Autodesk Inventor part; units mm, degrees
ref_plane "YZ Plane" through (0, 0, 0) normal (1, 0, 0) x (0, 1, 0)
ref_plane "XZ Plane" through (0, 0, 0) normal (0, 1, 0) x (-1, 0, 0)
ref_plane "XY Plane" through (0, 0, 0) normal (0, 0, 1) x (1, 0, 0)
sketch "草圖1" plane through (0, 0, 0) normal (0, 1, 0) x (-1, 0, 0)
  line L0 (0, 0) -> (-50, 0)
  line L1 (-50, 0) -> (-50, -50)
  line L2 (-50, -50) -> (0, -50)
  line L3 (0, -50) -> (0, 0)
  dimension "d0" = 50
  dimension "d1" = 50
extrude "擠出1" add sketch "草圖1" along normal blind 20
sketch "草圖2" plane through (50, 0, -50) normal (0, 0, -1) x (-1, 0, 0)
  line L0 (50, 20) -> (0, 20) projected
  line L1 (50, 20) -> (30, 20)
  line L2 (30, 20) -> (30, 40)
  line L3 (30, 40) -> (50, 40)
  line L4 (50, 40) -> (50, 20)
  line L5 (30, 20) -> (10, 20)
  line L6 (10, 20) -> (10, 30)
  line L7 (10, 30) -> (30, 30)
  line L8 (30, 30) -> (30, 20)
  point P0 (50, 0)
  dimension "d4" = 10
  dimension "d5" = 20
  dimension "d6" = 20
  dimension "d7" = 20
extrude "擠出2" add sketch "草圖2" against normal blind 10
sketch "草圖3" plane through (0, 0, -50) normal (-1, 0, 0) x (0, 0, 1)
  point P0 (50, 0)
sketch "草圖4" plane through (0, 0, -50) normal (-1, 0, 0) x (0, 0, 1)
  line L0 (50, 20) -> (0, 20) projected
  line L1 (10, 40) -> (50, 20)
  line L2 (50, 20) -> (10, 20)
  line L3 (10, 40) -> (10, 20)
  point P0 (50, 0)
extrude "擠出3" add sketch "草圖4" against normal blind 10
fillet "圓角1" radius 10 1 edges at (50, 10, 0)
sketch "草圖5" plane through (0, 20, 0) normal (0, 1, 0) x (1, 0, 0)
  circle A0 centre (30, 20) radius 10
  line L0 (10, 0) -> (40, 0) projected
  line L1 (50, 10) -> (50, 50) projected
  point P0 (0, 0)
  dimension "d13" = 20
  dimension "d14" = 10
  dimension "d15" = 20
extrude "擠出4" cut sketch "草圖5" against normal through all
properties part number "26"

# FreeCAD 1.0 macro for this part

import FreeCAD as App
import Part
import Sketcher
from FreeCAD import Vector
Q = App.Units.Quantity


def edges_at(feature, points):
    """Names of the edges that pass closest to the given points."""
    edges = feature.Shape.Edges
    near = lambda p: min(range(len(edges)), key=lambda i: edges[i].distToShape(Part.Vertex(*p))[0])
    return sorted({f"Edge{near(p) + 1}" for p in points})


def add_polygon(sketch, points):
    """Adds a closed chain of lines whose ends are joined by coincident constraints."""
    first, n = sketch.GeometryCount, len(points)
    for a, b in zip(points, points[1:] + points[:1]):
        sketch.addGeometry(Part.LineSegment(App.Vector(*a, 0), App.Vector(*b, 0)), False)
    for i in range(n):
        sketch.addConstraint(Sketcher.Constraint("Coincident", first + i, 2, first + (i + 1) % n, 1))

doc = App.newDocument("Part")
body = doc.addObject("PartDesign::Body", "Body")

sketch1 = body.newObject("Sketcher::SketchObject", "Sketch")
sketch1.AttachmentSupport = (doc.getObject("XZ_Plane"), [""])
sketch1.MapMode = "FlatFace"
add_polygon(sketch1, [(0, -50), (0, 0), (50, 0), (50, -50)])
sketch1.addConstraint(Sketcher.Constraint("Vertical", 0))
sketch1.addConstraint(Sketcher.Constraint("Horizontal", 1))
sketch1.addConstraint(Sketcher.Constraint("Vertical", 2))
sketch1.addConstraint(Sketcher.Constraint("Horizontal", 3))
sketch1.addConstraint(Sketcher.Constraint("Coincident", 0, 2, -1, 1))
sketch1.addConstraint(Sketcher.Constraint("Equal", 3, 0))
sketch1.addConstraint(Sketcher.Constraint("DistanceX", 1, 1, 1, 2, Q("50 mm")))
pad1 = body.newObject("PartDesign::Pad", "Pad")
pad1.Profile = sketch1
pad1.Length = 20
pad1.Reversed = True

sketch2 = body.newObject("Sketcher::SketchObject", "Sketch001")
sketch2.AttachmentSupport = (doc.getObject("XY_Plane"), [""])
sketch2.MapMode = "FlatFace"
sketch2.AttachmentOffset = App.Placement(Vector(0, 0, -50), App.Rotation())
add_polygon(sketch2, [(0, 20), (0, 40), (20, 40), (20, 30), (40, 30), (40, 20)])
sketch2.addConstraint(Sketcher.Constraint("Vertical", 0))
sketch2.addConstraint(Sketcher.Constraint("Horizontal", 1))
sketch2.addConstraint(Sketcher.Constraint("Vertical", 2))
sketch2.addConstraint(Sketcher.Constraint("Horizontal", 3))
sketch2.addConstraint(Sketcher.Constraint("Vertical", 4))
sketch2.addConstraint(Sketcher.Constraint("Horizontal", 5))
sketch2.addConstraint(Sketcher.Constraint("PointOnObject", 0, 2, -2))
sketch2.addConstraint(Sketcher.Constraint("Equal", 1, 3))
sketch2.addConstraint(Sketcher.Constraint("Equal", 3, 0))
sketch2.addConstraint(Sketcher.Constraint("Equal", 2, 4))
sketch2.addConstraint(Sketcher.Constraint("DistanceX", 1, 1, 1, 2, Q("20 mm")))
sketch2.addConstraint(Sketcher.Constraint("DistanceY", -1, 1, 4, 2, Q("20 mm")))
pad2 = body.newObject("PartDesign::Pad", "Pad001")
pad2.Profile = sketch2
pad2.Length = 10

sketch3 = body.newObject("Sketcher::SketchObject", "Sketch002")
sketch3.AttachmentSupport = (doc.getObject("YZ_Plane"), [""])
sketch3.MapMode = "FlatFace"
add_polygon(sketch3, [(20, -40), (20, 0), (40, -40)])
sketch3.addConstraint(Sketcher.Constraint("Vertical", 0))
sketch3.addConstraint(Sketcher.Constraint("Horizontal", 2))
sketch3.addConstraint(Sketcher.Constraint("PointOnObject", 0, 2, -1))
sketch3.addConstraint(Sketcher.Constraint("DistanceX", 2, 2, 2, 1, Q("20 mm")))
sketch3.addConstraint(Sketcher.Constraint("DistanceY", 0, 1, 0, 2, Q("40 mm")))
sketch3.addConstraint(Sketcher.Constraint("DistanceX", -1, 1, 0, 2, Q("20 mm")))
pad3 = body.newObject("PartDesign::Pad", "Pad002")
pad3.Profile = sketch3
pad3.Length = 10
doc.recompute()

fillet = body.newObject("PartDesign::Fillet", "Fillet")
fillet.Base = (pad3, edges_at(pad3, [(50, 10, 0)]))
fillet.Radius = 10

sketch4 = body.newObject("Sketcher::SketchObject", "Sketch003")
sketch4.AttachmentSupport = (doc.getObject("XZ_Plane"), [""])
sketch4.MapMode = "FlatFace"
sketch4.AttachmentOffset = App.Placement(Vector(0, 0, -20), App.Rotation())
sketch4.addGeometry(Part.Circle(Vector(30, -20, 0), Vector(0, 0, 1), 10), False)
sketch4.addConstraint(Sketcher.Constraint("Diameter", 0, Q("20 mm")))
sketch4.addConstraint(Sketcher.Constraint("DistanceY", 0, 3, -1, 1, Q("20 mm")))
sketch4.addConstraint(Sketcher.Constraint("DistanceX", -1, 1, 0, 3, Q("30 mm")))
pocket1 = body.newObject("PartDesign::Pocket", "Pocket")
pocket1.Profile = sketch4
pocket1.Type = "ThroughAll"
pocket1.Reversed = True

doc.recompute()
